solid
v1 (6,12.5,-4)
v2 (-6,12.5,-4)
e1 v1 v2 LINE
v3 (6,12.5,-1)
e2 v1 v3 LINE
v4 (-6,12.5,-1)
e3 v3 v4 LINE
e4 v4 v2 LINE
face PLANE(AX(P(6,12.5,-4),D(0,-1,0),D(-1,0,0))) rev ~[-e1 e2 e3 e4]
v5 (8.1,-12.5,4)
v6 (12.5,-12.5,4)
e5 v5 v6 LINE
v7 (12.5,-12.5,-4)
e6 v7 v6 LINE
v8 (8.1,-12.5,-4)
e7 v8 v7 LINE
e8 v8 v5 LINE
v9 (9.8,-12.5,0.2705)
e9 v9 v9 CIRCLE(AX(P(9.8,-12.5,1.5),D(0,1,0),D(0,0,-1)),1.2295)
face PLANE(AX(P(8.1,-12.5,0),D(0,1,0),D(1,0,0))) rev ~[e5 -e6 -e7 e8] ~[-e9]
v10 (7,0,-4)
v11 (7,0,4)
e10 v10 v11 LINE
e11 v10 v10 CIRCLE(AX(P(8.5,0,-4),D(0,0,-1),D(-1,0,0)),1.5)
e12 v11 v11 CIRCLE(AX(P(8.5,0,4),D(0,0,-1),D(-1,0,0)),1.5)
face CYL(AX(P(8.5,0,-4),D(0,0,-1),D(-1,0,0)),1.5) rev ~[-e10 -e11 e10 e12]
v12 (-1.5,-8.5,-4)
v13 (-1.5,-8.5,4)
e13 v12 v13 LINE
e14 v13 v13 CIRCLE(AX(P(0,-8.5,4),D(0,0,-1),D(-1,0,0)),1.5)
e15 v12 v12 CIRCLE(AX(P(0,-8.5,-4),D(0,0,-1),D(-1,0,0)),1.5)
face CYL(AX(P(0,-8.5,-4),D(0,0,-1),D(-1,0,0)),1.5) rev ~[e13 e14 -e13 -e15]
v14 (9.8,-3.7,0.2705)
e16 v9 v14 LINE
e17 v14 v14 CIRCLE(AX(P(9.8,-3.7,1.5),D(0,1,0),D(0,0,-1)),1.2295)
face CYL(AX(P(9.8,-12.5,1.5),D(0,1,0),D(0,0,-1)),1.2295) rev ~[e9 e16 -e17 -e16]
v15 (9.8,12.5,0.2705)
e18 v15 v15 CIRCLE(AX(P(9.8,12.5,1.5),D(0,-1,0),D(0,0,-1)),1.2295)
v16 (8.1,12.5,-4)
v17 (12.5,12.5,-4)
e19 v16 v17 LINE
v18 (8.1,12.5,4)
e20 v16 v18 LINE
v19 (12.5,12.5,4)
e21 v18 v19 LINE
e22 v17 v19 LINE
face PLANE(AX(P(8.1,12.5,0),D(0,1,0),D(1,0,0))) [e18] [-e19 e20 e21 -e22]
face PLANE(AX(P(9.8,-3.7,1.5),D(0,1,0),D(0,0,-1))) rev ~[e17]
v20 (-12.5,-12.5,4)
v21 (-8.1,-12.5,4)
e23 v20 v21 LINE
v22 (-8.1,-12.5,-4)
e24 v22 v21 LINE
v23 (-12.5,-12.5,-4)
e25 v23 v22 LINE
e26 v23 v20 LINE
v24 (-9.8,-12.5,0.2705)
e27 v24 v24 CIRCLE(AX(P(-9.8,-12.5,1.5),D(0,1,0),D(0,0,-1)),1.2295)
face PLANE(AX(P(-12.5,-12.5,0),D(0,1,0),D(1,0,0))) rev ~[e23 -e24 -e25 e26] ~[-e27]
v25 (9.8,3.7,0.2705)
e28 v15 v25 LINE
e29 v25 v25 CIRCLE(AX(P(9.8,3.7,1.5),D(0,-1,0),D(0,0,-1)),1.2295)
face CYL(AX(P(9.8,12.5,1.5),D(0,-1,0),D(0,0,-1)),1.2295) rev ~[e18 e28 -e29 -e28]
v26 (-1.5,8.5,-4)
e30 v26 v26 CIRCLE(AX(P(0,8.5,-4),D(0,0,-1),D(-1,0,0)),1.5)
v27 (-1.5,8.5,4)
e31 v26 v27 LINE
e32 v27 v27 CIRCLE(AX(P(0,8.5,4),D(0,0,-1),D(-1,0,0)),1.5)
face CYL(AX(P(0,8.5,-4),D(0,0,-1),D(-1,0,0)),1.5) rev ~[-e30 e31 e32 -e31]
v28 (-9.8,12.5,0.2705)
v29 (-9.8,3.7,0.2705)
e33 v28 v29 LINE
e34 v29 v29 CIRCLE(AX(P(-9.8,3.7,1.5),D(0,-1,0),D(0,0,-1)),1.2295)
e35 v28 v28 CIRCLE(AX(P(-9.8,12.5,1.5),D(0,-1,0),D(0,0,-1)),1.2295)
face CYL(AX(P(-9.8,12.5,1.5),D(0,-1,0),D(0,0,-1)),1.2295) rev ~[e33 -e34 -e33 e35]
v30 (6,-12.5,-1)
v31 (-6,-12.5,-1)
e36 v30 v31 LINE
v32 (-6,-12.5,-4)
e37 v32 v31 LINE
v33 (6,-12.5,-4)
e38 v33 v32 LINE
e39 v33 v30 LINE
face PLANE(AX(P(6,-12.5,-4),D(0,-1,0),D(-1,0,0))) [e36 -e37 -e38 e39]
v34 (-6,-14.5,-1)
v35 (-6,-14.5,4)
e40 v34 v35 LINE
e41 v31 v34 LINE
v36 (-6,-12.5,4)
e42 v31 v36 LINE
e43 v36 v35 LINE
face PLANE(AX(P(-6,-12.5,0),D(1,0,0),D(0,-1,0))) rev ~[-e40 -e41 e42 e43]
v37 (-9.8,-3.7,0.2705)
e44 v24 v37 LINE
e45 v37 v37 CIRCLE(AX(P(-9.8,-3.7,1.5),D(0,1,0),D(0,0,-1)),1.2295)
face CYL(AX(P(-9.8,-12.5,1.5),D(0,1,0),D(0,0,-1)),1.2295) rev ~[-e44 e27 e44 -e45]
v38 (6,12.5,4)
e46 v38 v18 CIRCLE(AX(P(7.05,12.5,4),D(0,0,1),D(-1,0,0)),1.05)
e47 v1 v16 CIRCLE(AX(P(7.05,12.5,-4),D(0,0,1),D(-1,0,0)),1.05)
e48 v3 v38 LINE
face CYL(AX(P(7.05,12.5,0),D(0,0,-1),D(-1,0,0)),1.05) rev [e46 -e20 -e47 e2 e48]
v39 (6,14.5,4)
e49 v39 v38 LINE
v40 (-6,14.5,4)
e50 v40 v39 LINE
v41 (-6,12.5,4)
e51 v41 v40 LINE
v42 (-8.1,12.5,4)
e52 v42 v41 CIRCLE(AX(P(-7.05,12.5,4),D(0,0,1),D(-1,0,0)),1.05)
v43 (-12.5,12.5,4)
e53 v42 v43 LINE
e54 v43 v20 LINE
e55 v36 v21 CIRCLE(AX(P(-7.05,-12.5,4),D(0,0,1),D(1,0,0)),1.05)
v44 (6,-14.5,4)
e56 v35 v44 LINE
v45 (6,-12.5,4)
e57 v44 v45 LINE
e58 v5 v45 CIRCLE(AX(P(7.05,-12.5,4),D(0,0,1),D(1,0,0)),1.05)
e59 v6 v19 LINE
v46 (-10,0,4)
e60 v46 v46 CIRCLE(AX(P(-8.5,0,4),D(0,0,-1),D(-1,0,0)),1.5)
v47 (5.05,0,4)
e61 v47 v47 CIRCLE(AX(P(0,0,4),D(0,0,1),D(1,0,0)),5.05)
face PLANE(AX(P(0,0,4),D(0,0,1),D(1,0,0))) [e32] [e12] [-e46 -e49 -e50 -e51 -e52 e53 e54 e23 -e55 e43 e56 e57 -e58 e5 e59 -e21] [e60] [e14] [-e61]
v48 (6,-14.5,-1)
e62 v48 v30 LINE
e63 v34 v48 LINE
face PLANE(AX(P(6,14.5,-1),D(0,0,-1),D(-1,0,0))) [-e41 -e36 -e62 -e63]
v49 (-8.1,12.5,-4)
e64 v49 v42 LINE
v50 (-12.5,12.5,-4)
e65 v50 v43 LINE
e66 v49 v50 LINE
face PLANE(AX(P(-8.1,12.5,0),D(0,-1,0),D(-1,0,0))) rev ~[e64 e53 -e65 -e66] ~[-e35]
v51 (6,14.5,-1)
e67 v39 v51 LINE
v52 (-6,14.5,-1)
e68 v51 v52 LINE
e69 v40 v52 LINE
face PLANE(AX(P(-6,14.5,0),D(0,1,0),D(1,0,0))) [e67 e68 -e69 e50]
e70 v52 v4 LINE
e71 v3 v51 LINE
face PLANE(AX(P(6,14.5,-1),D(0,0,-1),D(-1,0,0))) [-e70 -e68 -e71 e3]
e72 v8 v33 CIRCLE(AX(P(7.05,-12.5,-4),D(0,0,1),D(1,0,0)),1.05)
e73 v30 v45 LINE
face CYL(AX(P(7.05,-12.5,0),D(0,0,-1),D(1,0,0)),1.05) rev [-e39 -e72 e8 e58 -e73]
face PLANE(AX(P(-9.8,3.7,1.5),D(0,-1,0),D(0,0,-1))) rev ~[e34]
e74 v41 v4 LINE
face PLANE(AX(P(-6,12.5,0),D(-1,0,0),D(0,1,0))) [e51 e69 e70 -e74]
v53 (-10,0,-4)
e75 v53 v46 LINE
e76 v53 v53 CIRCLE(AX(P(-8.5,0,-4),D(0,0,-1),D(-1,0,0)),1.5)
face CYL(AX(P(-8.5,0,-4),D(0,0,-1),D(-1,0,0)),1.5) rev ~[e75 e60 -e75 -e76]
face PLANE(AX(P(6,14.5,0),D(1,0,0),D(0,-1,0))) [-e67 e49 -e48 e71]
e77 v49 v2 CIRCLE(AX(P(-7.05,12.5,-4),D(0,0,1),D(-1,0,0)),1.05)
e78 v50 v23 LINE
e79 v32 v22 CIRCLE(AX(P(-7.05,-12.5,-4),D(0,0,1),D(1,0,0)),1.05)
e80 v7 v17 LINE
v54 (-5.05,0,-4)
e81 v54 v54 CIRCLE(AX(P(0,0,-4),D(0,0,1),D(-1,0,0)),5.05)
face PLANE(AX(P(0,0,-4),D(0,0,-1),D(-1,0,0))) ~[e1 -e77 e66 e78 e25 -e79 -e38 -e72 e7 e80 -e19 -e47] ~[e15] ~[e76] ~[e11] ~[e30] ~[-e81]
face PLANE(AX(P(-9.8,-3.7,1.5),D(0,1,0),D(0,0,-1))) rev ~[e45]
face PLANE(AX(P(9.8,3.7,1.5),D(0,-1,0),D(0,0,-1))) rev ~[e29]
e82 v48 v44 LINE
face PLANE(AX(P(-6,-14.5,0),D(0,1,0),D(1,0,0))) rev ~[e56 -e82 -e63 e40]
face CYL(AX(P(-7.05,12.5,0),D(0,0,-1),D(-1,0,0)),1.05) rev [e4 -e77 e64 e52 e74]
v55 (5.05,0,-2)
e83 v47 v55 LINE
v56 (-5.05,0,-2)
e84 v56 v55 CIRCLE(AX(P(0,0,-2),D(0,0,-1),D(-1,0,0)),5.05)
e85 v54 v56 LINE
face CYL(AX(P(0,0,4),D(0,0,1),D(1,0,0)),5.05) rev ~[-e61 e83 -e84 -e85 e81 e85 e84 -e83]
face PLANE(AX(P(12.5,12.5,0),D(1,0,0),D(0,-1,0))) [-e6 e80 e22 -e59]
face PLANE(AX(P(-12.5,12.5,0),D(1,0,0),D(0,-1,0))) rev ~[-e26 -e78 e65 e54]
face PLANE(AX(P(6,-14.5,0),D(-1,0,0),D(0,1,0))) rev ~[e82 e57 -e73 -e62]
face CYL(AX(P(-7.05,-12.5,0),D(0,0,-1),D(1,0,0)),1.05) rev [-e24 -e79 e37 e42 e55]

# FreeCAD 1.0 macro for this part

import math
import FreeCAD as App
import Part
import Sketcher
from FreeCAD import Vector

doc = App.newDocument("Part")
body = doc.addObject("PartDesign::Body", "Body")

# Sketch on XY plane
sketch1 = doc.addObject("Sketcher::SketchObject", "Sketch")
body.addObject(sketch1)
sketch1.AttachmentSupport = (doc.XY_Plane, [""])
sketch1.MapMode = "FlatFace"
sketch1.addGeometry([
    Part.ArcOfCircle(Part.Circle(Vector(-7, 12.5, 0), Vector(0, 0, 1), 1), math.radians(180), math.radians(360)),  # 0
    Part.LineSegment(Vector(-8.1, 12.5, 0), Vector(-12.5, 12.5, 0)),  # 1
    Part.LineSegment(Vector(-12.5, 12.5, 0), Vector(-12.5, -12.5, 0)),  # 2
    Part.LineSegment(Vector(-12.5, -12.5, 0), Vector(-8.1, -12.5, 0)),  # 3
    Part.ArcOfCircle(Part.Circle(Vector(-7, -12.5, 0), Vector(0, 0, 1), 1), math.radians(0), math.radians(180)),  # 4
    Part.LineSegment(Vector(-6, -12.5, 0), Vector(-6, -14.5, 0)),  # 5
    Part.LineSegment(Vector(-6, -14.5, 0), Vector(6, -14.5, 0)),  # 6
    Part.LineSegment(Vector(6, -14.5, 0), Vector(6, -12.5, 0)),  # 7
    Part.ArcOfCircle(Part.Circle(Vector(7, -12.5, 0), Vector(0, 0, 1), 1), math.radians(0), math.radians(180)),  # 8
    Part.LineSegment(Vector(8.1, -12.5, 0), Vector(12.5, -12.5, 0)),  # 9
    Part.LineSegment(Vector(12.5, -12.5, 0), Vector(12.5, 12.5, 0)),  # 10
    Part.LineSegment(Vector(12.5, 12.5, 0), Vector(8.1, 12.5, 0)),  # 11
    Part.ArcOfCircle(Part.Circle(Vector(7, 12.5, 0), Vector(0, 0, 1), 1), math.radians(180), math.radians(360)),  # 12
    Part.LineSegment(Vector(6, 12.5, 0), Vector(6, 14.5, 0)),  # 13
    Part.LineSegment(Vector(6, 14.5, 0), Vector(-6, 14.5, 0)),  # 14
    Part.LineSegment(Vector(-6, 14.5, 0), Vector(-6, 12.5, 0)),  # 15
], False)
sketch1.addConstraint([
    Sketcher.Constraint("Coincident", 0, 1, 1, 1),
    Sketcher.Constraint("Coincident", 1, 2, 2, 1),
    Sketcher.Constraint("Coincident", 2, 2, 3, 1),
    Sketcher.Constraint("Coincident", 3, 2, 4, 2),
    Sketcher.Constraint("Tangent", 4, 1, 5, 1),
    Sketcher.Constraint("Coincident", 5, 2, 6, 1),
    Sketcher.Constraint("Coincident", 6, 2, 7, 1),
    Sketcher.Constraint("Tangent", 7, 2, 8, 2),
    Sketcher.Constraint("Coincident", 8, 1, 9, 1),
    Sketcher.Constraint("Coincident", 9, 2, 10, 1),
    Sketcher.Constraint("Coincident", 10, 2, 11, 1),
    Sketcher.Constraint("Coincident", 11, 2, 12, 2),
    Sketcher.Constraint("Tangent", 12, 1, 13, 1),
    Sketcher.Constraint("Coincident", 13, 2, 14, 1),
    Sketcher.Constraint("Coincident", 14, 2, 15, 1),
    Sketcher.Constraint("Tangent", 15, 2, 0, 2),
    Sketcher.Constraint("Horizontal", 1),
    Sketcher.Constraint("Vertical", 2),
    Sketcher.Constraint("Horizontal", 3),
    Sketcher.Constraint("Vertical", 5),
    Sketcher.Constraint("Horizontal", 6),
    Sketcher.Constraint("Vertical", 7),
    Sketcher.Constraint("Horizontal", 9),
    Sketcher.Constraint("Vertical", 10),
    Sketcher.Constraint("Horizontal", 11),
    Sketcher.Constraint("Vertical", 13),
    Sketcher.Constraint("Horizontal", 14),
    Sketcher.Constraint("Vertical", 15),
    Sketcher.Constraint("Equal", 0, 4),
    Sketcher.Constraint("Equal", 4, 8),
    Sketcher.Constraint("Equal", 8, 12),
    Sketcher.Constraint("Symmetric", 0, 3, 8, 3, -1, 1),
    Sketcher.Constraint("Symmetric", 4, 3, 12, 3, -1, 1),
    Sketcher.Constraint("Symmetric", 1, 2, 9, 2, -1, 1),
    Sketcher.Constraint("Symmetric", 4, 3, 8, 3, -2),
    Sketcher.Constraint("Horizontal", 12, 3, 0, 1),
    Sketcher.Constraint("Horizontal", 8, 3, 2, 2),
    Sketcher.Constraint("Horizontal", 1, 2, 10, 2),
    Sketcher.Constraint("Equal", 7, 13),
    Sketcher.Constraint("DistanceY", 2, 2, 2, 1, 25.0),
    Sketcher.Constraint("DistanceY", 5, 2, 5, 1, 2.0),
    Sketcher.Constraint("Radius", 0, 1.05),
    Sketcher.Constraint("DistanceX", 1, 2, 10, 2, 25.0),
    Sketcher.Constraint("DistanceX", 2, 2, 4, 1, 6.5),
])
pad1 = doc.addObject("PartDesign::Pad", "Pad")
body.addObject(pad1)
pad1.Profile = sketch1
pad1.Length = 4
doc.recompute()

mirrored = doc.addObject("PartDesign::Mirrored", "Mirrored")
body.addObject(mirrored)
mirrored.Originals = [pad1]
mirrored.MirrorPlane = (doc.XY_Plane, [""])
body.Tip = mirrored

# Sketch on XZ plane
sketch2 = doc.addObject("Sketcher::SketchObject", "Sketch001")
body.addObject(sketch2)
sketch2.AttachmentSupport = (doc.XZ_Plane, [""])
sketch2.MapMode = "FlatFace"
sketch2.AttachmentOffset = App.Placement(Vector(0, 0, 12.5), App.Rotation())
sketch2.addGeometry([
    Part.Circle(Vector(-9.8, 1.5, 0), Vector(0, 0, 1), 1.2),
    Part.Circle(Vector(9.8, 1.5, 0), Vector(0, 0, 1), 1.2),
], False)
sketch2.addConstraint([
    Sketcher.Constraint("Equal", 0, 1),
    Sketcher.Constraint("Symmetric", 0, 3, 1, 3, -2),
    Sketcher.Constraint("Diameter", 0, 2.459),
    Sketcher.Constraint("DistanceX", 0, 3, -1, 1, 9.8),
    Sketcher.Constraint("DistanceY", -1, 1, 0, 3, 1.5),
])
doc.recompute()
hole = doc.addObject("PartDesign::Hole", "Hole")
body.addObject(hole)
hole.Profile = sketch2
hole.ThreadType = "None"
hole.Diameter = 2.459
hole.DepthType = "Dimension"
hole.Depth = 8.8
hole.DrillPoint = "Flat"
doc.recompute()

polarpattern = doc.addObject("PartDesign::PolarPattern", "PolarPattern")
body.addObject(polarpattern)
polarpattern.Originals = [hole]
polarpattern.Axis = (doc.Z_Axis, [""])
polarpattern.Angle = 360
polarpattern.Occurrences = 2
body.Tip = polarpattern

# Sketch on XY plane
sketch3 = doc.addObject("Sketcher::SketchObject", "Sketch002")
body.addObject(sketch3)
sketch3.AttachmentSupport = (doc.XY_Plane, [""])
sketch3.MapMode = "FlatFace"
sketch3.AttachmentOffset = App.Placement(Vector(0, 0, -4), App.Rotation())
sketch3.addGeometry([
    Part.Circle(Vector(0, -8.5, 0), Vector(0, 0, 1), 1.5),
    Part.Circle(Vector(-8.5, 0, 0), Vector(0, 0, 1), 1.5),
    Part.Circle(Vector(0, 8.5, 0), Vector(0, 0, 1), 1.5),
    Part.Circle(Vector(8.5, 0, 0), Vector(0, 0, 1), 1.5),
], False)
sketch3.addConstraint([
    Sketcher.Constraint("Equal", 0, 1),
    Sketcher.Constraint("Equal", 1, 2),
    Sketcher.Constraint("Equal", 2, 3),
    Sketcher.Constraint("Symmetric", 0, 3, 2, 3, -1, 1),
    Sketcher.Constraint("Symmetric", 1, 3, 3, 3, -1, 1),
    Sketcher.Constraint("PointOnObject", 0, 3, -2),
    Sketcher.Constraint("PointOnObject", 1, 3, -1),
    Sketcher.Constraint("Diameter", 0, 3.0),
    Sketcher.Constraint("DistanceY", 0, 3, -1, 1, 8.5),
    Sketcher.Constraint("DistanceX", 1, 3, -1, 1, 8.5),
])
pocket1 = doc.addObject("PartDesign::Pocket", "Pocket")
body.addObject(pocket1)
pocket1.Profile = sketch3
pocket1.Type = "ThroughAll"
pocket1.Reversed = True

# Sketch on XY plane
sketch4 = doc.addObject("Sketcher::SketchObject", "Sketch003")
body.addObject(sketch4)
sketch4.AttachmentSupport = (doc.XY_Plane, [""])
sketch4.MapMode = "FlatFace"
sketch4.AttachmentOffset = App.Placement(Vector(0, 0, -4), App.Rotation())
sketch4.addGeometry(Part.Circle(Vector(0, 0, 0), Vector(0, 0, 1), 5), False)
sketch4.addConstraint([
    Sketcher.Constraint("Coincident", 0, 3, -1, 1),
    Sketcher.Constraint("Diameter", 0, 10.1),
])
pocket2 = doc.addObject("PartDesign::Pocket", "Pocket001")
body.addObject(pocket2)
pocket2.Profile = sketch4
pocket2.Length = 2
pocket2.Reversed = True

# Sketch on XY plane
sketch5 = doc.addObject("Sketcher::SketchObject", "Sketch004")
body.addObject(sketch5)
sketch5.AttachmentSupport = (doc.XY_Plane, [""])
sketch5.MapMode = "FlatFace"
sketch5.AttachmentOffset = App.Placement(Vector(0, 0, 4), App.Rotation())
sketch5.addGeometry(Part.Circle(Vector(0, 0, 0), Vector(0, 0, 1), 5), False)
sketch5.addConstraint([
    Sketcher.Constraint("Coincident", 0, 3, -1, 1),
    Sketcher.Constraint("Diameter", 0, 10.1),
])
pocket3 = doc.addObject("PartDesign::Pocket", "Pocket002")
body.addObject(pocket3)
pocket3.Profile = sketch5
pocket3.Length = 8

# Sketch on XY plane
sketch6 = doc.addObject("Sketcher::SketchObject", "Sketch005")
body.addObject(sketch6)
sketch6.AttachmentSupport = (doc.XY_Plane, [""])
sketch6.MapMode = "FlatFace"
sketch6.AttachmentOffset = App.Placement(Vector(0, 0, -4), App.Rotation())
sketch6.addGeometry([
    Part.LineSegment(Vector(6, -12.5, 0), Vector(6, -14.5, 0)),  # 0
    Part.LineSegment(Vector(6, -14.5, 0), Vector(-6, -14.5, 0)),  # 1
    Part.LineSegment(Vector(-6, -14.5, 0), Vector(-6, -12.5, 0)),  # 2
    Part.LineSegment(Vector(-6, -12.5, 0), Vector(6, -12.5, 0)),  # 3
    Part.LineSegment(Vector(-6, 14.5, 0), Vector(6, 14.5, 0)),  # 4
    Part.LineSegment(Vector(6, 14.5, 0), Vector(6, 12.5, 0)),  # 5
    Part.LineSegment(Vector(6, 12.5, 0), Vector(-6, 12.5, 0)),  # 6
    Part.LineSegment(Vector(-6, 12.5, 0), Vector(-6, 14.5, 0)),  # 7
], False)
sketch6.addConstraint([
    Sketcher.Constraint("Coincident", 0, 2, 1, 1),
    Sketcher.Constraint("Coincident", 1, 2, 2, 1),
    Sketcher.Constraint("Coincident", 2, 2, 3, 1),
    Sketcher.Constraint("Coincident", 3, 2, 0, 1),
    Sketcher.Constraint("Coincident", 4, 2, 5, 1),
    Sketcher.Constraint("Coincident", 5, 2, 6, 1),
    Sketcher.Constraint("Coincident", 6, 2, 7, 1),
    Sketcher.Constraint("Coincident", 7, 2, 4, 1),
    Sketcher.Constraint("Vertical", 0),
    Sketcher.Constraint("Horizontal", 1),
    Sketcher.Constraint("Vertical", 2),
    Sketcher.Constraint("Horizontal", 3),
    Sketcher.Constraint("Horizontal", 4),
    Sketcher.Constraint("Vertical", 5),
    Sketcher.Constraint("Horizontal", 6),
    Sketcher.Constraint("Vertical", 7),
    Sketcher.Constraint("Symmetric", 1, 2, 4, 2, -1, 1),
    Sketcher.Constraint("Symmetric", 3, 2, 6, 2, -1, 1),
    Sketcher.Constraint("Vertical", 3, 2, 4, 2),
    Sketcher.Constraint("DistanceX", 1, 2, 1, 1, 12.0),
    Sketcher.Constraint("DistanceY", 0, 2, 0, 1, 2.0),
    Sketcher.Constraint("DistanceY", 3, 2, 4, 2, 27.0),
])
pocket4 = doc.addObject("PartDesign::Pocket", "Pocket003")
body.addObject(pocket4)
pocket4.Profile = sketch6
pocket4.Length = 3
pocket4.Reversed = True

doc.recompute()
